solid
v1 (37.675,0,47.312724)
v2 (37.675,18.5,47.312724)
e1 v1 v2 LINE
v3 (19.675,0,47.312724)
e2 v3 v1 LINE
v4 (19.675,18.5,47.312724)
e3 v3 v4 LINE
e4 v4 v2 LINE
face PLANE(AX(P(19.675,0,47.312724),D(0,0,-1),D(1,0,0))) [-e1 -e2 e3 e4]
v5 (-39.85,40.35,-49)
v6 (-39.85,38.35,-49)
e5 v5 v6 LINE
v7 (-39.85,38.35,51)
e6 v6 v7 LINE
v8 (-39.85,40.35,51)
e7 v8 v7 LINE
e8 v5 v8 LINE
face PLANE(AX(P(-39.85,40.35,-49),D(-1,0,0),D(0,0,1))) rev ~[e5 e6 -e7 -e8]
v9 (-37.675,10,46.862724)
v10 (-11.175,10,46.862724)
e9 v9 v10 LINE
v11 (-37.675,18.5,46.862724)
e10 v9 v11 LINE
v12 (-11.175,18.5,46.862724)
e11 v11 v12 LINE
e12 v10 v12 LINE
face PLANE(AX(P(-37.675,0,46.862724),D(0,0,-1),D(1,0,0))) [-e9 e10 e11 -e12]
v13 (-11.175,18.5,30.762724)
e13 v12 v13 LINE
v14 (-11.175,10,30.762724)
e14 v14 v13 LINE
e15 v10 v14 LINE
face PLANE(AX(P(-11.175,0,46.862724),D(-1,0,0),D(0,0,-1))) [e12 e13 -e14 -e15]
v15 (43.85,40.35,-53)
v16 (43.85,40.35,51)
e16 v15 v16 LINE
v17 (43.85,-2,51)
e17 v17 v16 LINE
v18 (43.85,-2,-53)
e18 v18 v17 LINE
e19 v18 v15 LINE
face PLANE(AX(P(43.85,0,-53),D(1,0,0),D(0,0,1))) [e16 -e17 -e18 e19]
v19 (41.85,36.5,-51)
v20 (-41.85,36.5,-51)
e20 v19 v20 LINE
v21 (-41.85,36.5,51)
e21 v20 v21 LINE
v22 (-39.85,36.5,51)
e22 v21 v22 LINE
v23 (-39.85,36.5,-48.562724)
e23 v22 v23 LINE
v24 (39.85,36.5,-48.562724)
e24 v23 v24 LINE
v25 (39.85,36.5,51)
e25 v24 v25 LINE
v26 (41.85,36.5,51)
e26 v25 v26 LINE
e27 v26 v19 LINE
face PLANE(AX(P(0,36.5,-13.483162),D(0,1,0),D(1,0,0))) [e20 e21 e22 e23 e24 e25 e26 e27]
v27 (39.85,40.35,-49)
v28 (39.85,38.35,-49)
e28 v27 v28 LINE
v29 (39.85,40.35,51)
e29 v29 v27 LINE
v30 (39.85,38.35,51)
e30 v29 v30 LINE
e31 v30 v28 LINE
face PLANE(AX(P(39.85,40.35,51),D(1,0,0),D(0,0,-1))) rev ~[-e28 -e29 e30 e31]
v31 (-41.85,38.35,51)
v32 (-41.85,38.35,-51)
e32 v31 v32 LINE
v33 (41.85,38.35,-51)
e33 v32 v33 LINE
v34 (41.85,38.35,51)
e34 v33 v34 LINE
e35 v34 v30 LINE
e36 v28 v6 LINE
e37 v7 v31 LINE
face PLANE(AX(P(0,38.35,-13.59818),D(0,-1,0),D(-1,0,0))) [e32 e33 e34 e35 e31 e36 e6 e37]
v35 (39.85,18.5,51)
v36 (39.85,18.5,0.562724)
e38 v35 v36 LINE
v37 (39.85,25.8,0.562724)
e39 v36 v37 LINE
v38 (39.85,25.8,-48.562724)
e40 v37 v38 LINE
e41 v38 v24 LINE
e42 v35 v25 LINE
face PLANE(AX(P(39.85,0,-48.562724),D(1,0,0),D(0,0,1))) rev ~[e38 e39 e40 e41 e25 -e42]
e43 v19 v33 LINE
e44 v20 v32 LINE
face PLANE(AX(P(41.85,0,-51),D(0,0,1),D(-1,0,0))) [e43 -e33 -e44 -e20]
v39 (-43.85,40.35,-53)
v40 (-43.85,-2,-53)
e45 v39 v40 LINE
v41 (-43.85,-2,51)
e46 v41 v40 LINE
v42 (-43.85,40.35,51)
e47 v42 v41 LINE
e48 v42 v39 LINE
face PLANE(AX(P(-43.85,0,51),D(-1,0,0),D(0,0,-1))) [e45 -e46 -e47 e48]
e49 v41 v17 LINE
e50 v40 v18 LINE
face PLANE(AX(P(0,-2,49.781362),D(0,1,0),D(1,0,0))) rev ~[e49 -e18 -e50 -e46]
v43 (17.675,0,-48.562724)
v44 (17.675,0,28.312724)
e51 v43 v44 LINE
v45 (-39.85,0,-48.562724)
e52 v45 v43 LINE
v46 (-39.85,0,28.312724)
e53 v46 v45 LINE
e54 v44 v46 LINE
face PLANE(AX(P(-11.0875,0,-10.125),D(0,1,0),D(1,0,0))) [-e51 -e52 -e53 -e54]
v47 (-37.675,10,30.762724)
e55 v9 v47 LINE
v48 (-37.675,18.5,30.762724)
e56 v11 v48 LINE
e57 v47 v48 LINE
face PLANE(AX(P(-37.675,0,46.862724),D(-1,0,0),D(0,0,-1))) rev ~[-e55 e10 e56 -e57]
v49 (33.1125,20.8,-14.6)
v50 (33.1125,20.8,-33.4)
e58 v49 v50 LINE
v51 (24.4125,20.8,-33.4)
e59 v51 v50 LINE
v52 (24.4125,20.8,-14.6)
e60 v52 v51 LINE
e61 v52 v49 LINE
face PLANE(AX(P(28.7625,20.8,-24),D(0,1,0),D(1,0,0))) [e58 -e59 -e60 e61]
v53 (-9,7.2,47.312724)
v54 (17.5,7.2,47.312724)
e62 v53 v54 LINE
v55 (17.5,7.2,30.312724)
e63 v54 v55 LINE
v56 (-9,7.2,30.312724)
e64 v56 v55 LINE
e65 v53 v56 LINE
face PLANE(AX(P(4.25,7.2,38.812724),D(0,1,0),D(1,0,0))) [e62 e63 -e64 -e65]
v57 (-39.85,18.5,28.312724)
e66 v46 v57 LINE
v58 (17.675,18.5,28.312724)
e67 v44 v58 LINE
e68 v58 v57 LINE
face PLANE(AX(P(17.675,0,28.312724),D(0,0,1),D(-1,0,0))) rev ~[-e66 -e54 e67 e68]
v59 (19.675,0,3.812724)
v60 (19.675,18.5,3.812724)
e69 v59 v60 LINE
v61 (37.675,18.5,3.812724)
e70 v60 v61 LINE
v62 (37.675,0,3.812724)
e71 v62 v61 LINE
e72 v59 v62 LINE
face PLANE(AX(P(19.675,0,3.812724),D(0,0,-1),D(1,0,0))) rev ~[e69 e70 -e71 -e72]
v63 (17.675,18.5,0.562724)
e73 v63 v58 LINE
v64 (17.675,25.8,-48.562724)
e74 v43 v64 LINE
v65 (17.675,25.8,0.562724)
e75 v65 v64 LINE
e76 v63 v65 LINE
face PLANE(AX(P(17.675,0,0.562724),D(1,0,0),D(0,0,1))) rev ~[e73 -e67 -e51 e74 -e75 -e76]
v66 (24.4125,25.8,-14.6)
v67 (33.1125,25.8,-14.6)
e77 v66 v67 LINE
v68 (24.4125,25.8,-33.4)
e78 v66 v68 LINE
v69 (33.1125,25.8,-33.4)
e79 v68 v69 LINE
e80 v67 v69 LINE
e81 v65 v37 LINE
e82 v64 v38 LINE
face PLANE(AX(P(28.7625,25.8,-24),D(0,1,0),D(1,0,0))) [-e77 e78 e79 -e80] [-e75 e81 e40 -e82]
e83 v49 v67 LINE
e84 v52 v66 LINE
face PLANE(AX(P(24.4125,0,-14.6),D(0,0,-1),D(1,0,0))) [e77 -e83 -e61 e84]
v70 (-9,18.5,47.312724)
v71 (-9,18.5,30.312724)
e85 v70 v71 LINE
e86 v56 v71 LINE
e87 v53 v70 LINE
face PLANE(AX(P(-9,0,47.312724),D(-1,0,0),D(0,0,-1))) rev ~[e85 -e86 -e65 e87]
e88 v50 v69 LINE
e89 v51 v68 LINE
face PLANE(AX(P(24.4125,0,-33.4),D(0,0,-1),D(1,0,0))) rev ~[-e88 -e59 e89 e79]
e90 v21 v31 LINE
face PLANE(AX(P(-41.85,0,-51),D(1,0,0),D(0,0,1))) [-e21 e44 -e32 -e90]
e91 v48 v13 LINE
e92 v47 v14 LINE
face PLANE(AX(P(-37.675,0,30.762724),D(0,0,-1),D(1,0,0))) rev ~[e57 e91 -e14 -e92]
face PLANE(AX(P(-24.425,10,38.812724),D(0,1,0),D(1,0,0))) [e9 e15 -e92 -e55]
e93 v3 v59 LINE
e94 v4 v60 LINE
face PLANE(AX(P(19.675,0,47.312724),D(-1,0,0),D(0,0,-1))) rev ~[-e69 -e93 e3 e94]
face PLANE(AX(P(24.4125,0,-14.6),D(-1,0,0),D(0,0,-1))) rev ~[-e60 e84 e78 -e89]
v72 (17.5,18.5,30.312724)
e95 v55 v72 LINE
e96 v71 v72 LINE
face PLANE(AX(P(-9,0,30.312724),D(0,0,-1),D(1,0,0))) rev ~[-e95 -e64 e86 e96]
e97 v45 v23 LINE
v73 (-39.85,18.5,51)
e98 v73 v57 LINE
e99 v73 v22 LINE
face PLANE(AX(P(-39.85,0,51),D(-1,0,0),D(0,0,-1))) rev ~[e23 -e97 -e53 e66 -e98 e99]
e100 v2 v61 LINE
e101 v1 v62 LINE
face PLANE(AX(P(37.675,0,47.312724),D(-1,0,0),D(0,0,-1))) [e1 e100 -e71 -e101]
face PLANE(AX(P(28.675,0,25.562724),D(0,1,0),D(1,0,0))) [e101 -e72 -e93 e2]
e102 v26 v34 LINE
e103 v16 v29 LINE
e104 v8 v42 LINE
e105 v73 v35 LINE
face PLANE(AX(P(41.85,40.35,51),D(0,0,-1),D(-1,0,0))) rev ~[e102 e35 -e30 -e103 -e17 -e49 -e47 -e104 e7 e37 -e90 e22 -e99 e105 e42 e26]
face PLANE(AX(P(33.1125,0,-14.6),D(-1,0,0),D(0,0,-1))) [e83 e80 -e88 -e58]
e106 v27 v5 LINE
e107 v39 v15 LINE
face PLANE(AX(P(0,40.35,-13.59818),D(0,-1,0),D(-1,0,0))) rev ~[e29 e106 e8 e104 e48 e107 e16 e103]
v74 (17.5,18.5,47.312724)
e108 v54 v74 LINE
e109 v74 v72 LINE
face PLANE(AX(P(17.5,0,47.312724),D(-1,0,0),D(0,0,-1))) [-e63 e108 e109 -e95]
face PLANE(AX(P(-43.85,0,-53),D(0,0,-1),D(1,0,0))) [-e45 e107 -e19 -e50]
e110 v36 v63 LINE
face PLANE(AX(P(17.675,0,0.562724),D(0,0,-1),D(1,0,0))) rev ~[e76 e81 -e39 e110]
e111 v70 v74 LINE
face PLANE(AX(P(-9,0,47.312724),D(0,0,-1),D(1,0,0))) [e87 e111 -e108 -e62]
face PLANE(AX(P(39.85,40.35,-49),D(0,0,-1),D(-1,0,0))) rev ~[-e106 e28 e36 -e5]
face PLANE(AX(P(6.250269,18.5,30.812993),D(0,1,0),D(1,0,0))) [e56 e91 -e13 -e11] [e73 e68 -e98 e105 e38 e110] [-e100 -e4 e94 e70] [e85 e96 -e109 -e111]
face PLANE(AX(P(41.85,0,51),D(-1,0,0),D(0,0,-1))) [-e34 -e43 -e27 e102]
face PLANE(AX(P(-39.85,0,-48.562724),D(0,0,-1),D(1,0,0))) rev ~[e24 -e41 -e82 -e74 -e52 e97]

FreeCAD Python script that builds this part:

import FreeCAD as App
import Part
import Sketcher


def add_polygon(sketch, points):
    """Adds a closed chain of lines whose ends are joined by coincident constraints."""
    first, n = sketch.GeometryCount, len(points)
    for a, b in zip(points, points[1:] + points[:1]):
        sketch.addGeometry(Part.LineSegment(App.Vector(*a, 0), App.Vector(*b, 0)), False)
    for i in range(n):
        sketch.addConstraint(Sketcher.Constraint("Coincident", first + i, 2, first + (i + 1) % n, 1))

doc = App.newDocument("Part")
body = doc.addObject("PartDesign::Body", "Body")

sketch1 = body.newObject("Sketcher::SketchObject", "Sketch")
sketch1.AttachmentSupport = (doc.getObject("XZ_Plane"), [""])
sketch1.MapMode = "FlatFace"
add_polygon(sketch1, [(-41.85, 51), (-39.85, 51), (-39.85, -48.562724), (39.85, -48.562724), (39.85, 51), (41.85, 51), (41.85, -51), (-41.85, -51)])
sketch1.addConstraint(Sketcher.Constraint("Horizontal", 0))
sketch1.addConstraint(Sketcher.Constraint("Vertical", 1))
sketch1.addConstraint(Sketcher.Constraint("Horizontal", 2))
sketch1.addConstraint(Sketcher.Constraint("Vertical", 3))
sketch1.addConstraint(Sketcher.Constraint("Horizontal", 4))
sketch1.addConstraint(Sketcher.Constraint("Vertical", 5))
sketch1.addConstraint(Sketcher.Constraint("Horizontal", 6))
sketch1.addConstraint(Sketcher.Constraint("Vertical", 7))
sketch1.addConstraint(Sketcher.Constraint("Symmetric", 4, 2, 6, 2, -1, 1))
sketch1.addConstraint(Sketcher.Constraint("Symmetric", 0, 2, 3, 2, -2))
sketch1.addConstraint(Sketcher.Constraint("DistanceX", 0, 1, 0, 2, 2.0))
sketch1.addConstraint(Sketcher.Constraint("DistanceY", 5, 2, 5, 1, 102.0))
sketch1.addConstraint(Sketcher.Constraint("DistanceX", 2, 1, 2, 2, 79.7))
sketch1.addConstraint(Sketcher.Constraint("DistanceY", 1, 2, 1, 1, 99.562724))
pad1 = body.newObject("PartDesign::Pad", "Pad")
pad1.Profile = sketch1
pad1.Length = 36.5
pad1.Reversed = True

sketch2 = body.newObject("Sketcher::SketchObject", "Sketch001")
sketch2.AttachmentSupport = (doc.getObject("XZ_Plane"), [""])
sketch2.MapMode = "FlatFace"
add_polygon(sketch2, [(41.85, 51), (43.85, 51), (43.85, -53), (-43.85, -53), (-43.85, 51), (-41.85, 51), (-41.85, -51), (41.85, -51)])
sketch2.addConstraint(Sketcher.Constraint("Horizontal", 0))
sketch2.addConstraint(Sketcher.Constraint("Vertical", 1))
sketch2.addConstraint(Sketcher.Constraint("Horizontal", 2))
sketch2.addConstraint(Sketcher.Constraint("Vertical", 3))
sketch2.addConstraint(Sketcher.Constraint("Horizontal", 4))
sketch2.addConstraint(Sketcher.Constraint("Vertical", 5))
sketch2.addConstraint(Sketcher.Constraint("Horizontal", 6))
sketch2.addConstraint(Sketcher.Constraint("Vertical", 7))
sketch2.addConstraint(Sketcher.Constraint("Symmetric", 4, 2, 6, 2, -1, 1))
sketch2.addConstraint(Sketcher.Constraint("Symmetric", 0, 2, 3, 2, -2))
sketch2.addConstraint(Sketcher.Constraint("DistanceX", 0, 1, 0, 2, 2.0))
sketch2.addConstraint(Sketcher.Constraint("DistanceY", 1, 2, 1, 1, 104.0))
sketch2.addConstraint(Sketcher.Constraint("DistanceY", 5, 2, 5, 1, 102.0))
sketch2.addConstraint(Sketcher.Constraint("DistanceX", 2, 2, 2, 1, 87.7))
pad2 = body.newObject("PartDesign::Pad", "Pad001")
pad2.Profile = sketch2
pad2.Length = 40.35
pad2.Reversed = True

sketch3 = body.newObject("Sketcher::SketchObject", "Sketch002")
sketch3.AttachmentSupport = (doc.getObject("XZ_Plane"), [""])
sketch3.MapMode = "FlatFace"
add_polygon(sketch3, [(17.675, -48.562724), (17.675, 0.562724), (39.85, 0.562724), (39.85, -48.562724)])
add_polygon(sketch3, [(33.1125, -14.6), (24.4125, -14.6), (24.4125, -33.4), (33.1125, -33.4)])
sketch3.addConstraint(Sketcher.Constraint("Vertical", 0))
sketch3.addConstraint(Sketcher.Constraint("Horizontal", 1))
sketch3.addConstraint(Sketcher.Constraint("Vertical", 2))
sketch3.addConstraint(Sketcher.Constraint("Horizontal", 3))
sketch3.addConstraint(Sketcher.Constraint("Horizontal", 4))
sketch3.addConstraint(Sketcher.Constraint("Vertical", 5))
sketch3.addConstraint(Sketcher.Constraint("Horizontal", 6))
sketch3.addConstraint(Sketcher.Constraint("Vertical", 7))
sketch3.addConstraint(Sketcher.Constraint("DistanceX", 4, 2, 4, 1, 8.7))
sketch3.addConstraint(Sketcher.Constraint("DistanceY", 5, 2, 5, 1, 18.8))
sketch3.addConstraint(Sketcher.Constraint("DistanceY", 4, 2, -1, 1, 14.6))
sketch3.addConstraint(Sketcher.Constraint("DistanceX", 1, 1, 1, 2, 22.175))
sketch3.addConstraint(Sketcher.Constraint("DistanceX", -1, 1, 1, 2, 39.85))
sketch3.addConstraint(Sketcher.Constraint("DistanceY", 0, 1, 0, 2, 49.125448))
sketch3.addConstraint(Sketcher.Constraint("DistanceX", -1, 1, 4, 2, 24.4125))
sketch3.addConstraint(Sketcher.Constraint("DistanceY", -1, 1, 0, 2, 0.562724))
pad3 = body.newObject("PartDesign::Pad", "Pad002")
pad3.Profile = sketch3
pad3.Length = 25.8
pad3.Reversed = True

sketch4 = body.newObject("Sketcher::SketchObject", "Sketch003")
sketch4.AttachmentSupport = (doc.getObject("XZ_Plane"), [""])
sketch4.MapMode = "FlatFace"
add_polygon(sketch4, [(24.4125, -33.4), (24.4125, -14.6), (33.1125, -14.6), (33.1125, -33.4)])
sketch4.addConstraint(Sketcher.Constraint("Vertical", 0))
sketch4.addConstraint(Sketcher.Constraint("Horizontal", 1))
sketch4.addConstraint(Sketcher.Constraint("Vertical", 2))
sketch4.addConstraint(Sketcher.Constraint("Horizontal", 3))
sketch4.addConstraint(Sketcher.Constraint("DistanceX", 1, 1, 1, 2, 8.7))
sketch4.addConstraint(Sketcher.Constraint("DistanceY", 0, 1, 0, 2, 18.8))
sketch4.addConstraint(Sketcher.Constraint("DistanceY", 0, 2, -1, 1, 14.6))
sketch4.addConstraint(Sketcher.Constraint("DistanceX", -1, 1, 0, 2, 24.4125))
pad4 = body.newObject("PartDesign::Pad", "Pad003")
pad4.Profile = sketch4
pad4.Length = 20.8
pad4.Reversed = True
body2 = doc.addObject("PartDesign::Body", "Body001")

sketch5 = body2.newObject("Sketcher::SketchObject", "Sketch004")
sketch5.AttachmentSupport = (doc.getObject("XZ_Plane001"), [""])
sketch5.MapMode = "FlatFace"
add_polygon(sketch5, [(-9, 30.312724), (-9, 47.312724), (17.5, 47.312724), (17.5, 30.312724)])
sketch5.addConstraint(Sketcher.Constraint("Vertical", 0))
sketch5.addConstraint(Sketcher.Constraint("Horizontal", 1))
sketch5.addConstraint(Sketcher.Constraint("Vertical", 2))
sketch5.addConstraint(Sketcher.Constraint("Horizontal", 3))
sketch5.addConstraint(Sketcher.Constraint("DistanceY", 0, 1, 0, 2, 17.0))
sketch5.addConstraint(Sketcher.Constraint("DistanceX", 1, 1, 1, 2, 26.5))
sketch5.addConstraint(Sketcher.Constraint("DistanceX", 0, 2, -1, 1, 9.0))
sketch5.addConstraint(Sketcher.Constraint("DistanceY", -1, 1, 0, 2, 47.312724))
pad5 = body2.newObject("PartDesign::Pad", "Pad004")
pad5.Profile = sketch5
pad5.Length = 7.2
pad5.Reversed = True
body3 = doc.addObject("PartDesign::Body", "Body002")

sketch6 = body3.newObject("Sketcher::SketchObject", "Sketch005")
sketch6.AttachmentSupport = (doc.getObject("XZ_Plane002"), [""])
sketch6.MapMode = "FlatFace"
add_polygon(sketch6, [(-37.675, 30.762724), (-37.675, 46.862724), (-11.175, 46.862724), (-11.175, 30.762724)])
sketch6.addConstraint(Sketcher.Constraint("Vertical", 0))
sketch6.addConstraint(Sketcher.Constraint("Horizontal", 1))
sketch6.addConstraint(Sketcher.Constraint("Vertical", 2))
sketch6.addConstraint(Sketcher.Constraint("Horizontal", 3))
sketch6.addConstraint(Sketcher.Constraint("DistanceX", 1, 1, 1, 2, 26.5))
sketch6.addConstraint(Sketcher.Constraint("DistanceY", 0, 1, 0, 2, 16.1))
sketch6.addConstraint(Sketcher.Constraint("DistanceX", 0, 2, -1, 1, 37.675))
sketch6.addConstraint(Sketcher.Constraint("DistanceY", -1, 1, 0, 2, 46.862724))
pad6 = body3.newObject("PartDesign::Pad", "Pad005")
pad6.Profile = sketch6
pad6.Length = 10
pad6.Reversed = True
body.AllowCompound = True
doc.recompute()

boolean = body.newObject("PartDesign::Boolean", "Boolean")
boolean.Type = "Fuse"
boolean.addObjects([body2])
doc.recompute()

boolean2 = body.newObject("PartDesign::Boolean", "Boolean001")
boolean2.Type = "Fuse"
boolean2.addObjects([body3])

sketch7 = body.newObject("Sketcher::SketchObject", "Sketch006")
sketch7.AttachmentSupport = (doc.getObject("XZ_Plane"), [""])
sketch7.MapMode = "FlatFace"
add_polygon(sketch7, [(-39.85, 28.312724), (-39.85, 51), (39.85, 51), (39.85, 0.562724), (17.675, 0.562724), (17.675, 28.312724)])
add_polygon(sketch7, [(-11.175, 46.862724), (-37.675, 46.862724), (-37.675, 30.762724), (-11.175, 30.762724)])
add_polygon(sketch7, [(17.5, 47.312724), (-9, 47.312724), (-9, 30.312724), (17.5, 30.312724)])
add_polygon(sketch7, [(37.675, 47.312724), (19.675, 47.312724), (19.675, 3.812724), (37.675, 3.812724)])
sketch7.addConstraint(Sketcher.Constraint("Vertical", 0))
sketch7.addConstraint(Sketcher.Constraint("Horizontal", 1))
sketch7.addConstraint(Sketcher.Constraint("Vertical", 2))
sketch7.addConstraint(Sketcher.Constraint("Horizontal", 3))
sketch7.addConstraint(Sketcher.Constraint("Vertical", 4))
sketch7.addConstraint(Sketcher.Constraint("Horizontal", 5))
sketch7.addConstraint(Sketcher.Constraint("Horizontal", 6))
sketch7.addConstraint(Sketcher.Constraint("Vertical", 7))
sketch7.addConstraint(Sketcher.Constraint("Horizontal", 8))
sketch7.addConstraint(Sketcher.Constraint("Vertical", 9))
sketch7.addConstraint(Sketcher.Constraint("Horizontal", 10))
sketch7.addConstraint(Sketcher.Constraint("Vertical", 11))
sketch7.addConstraint(Sketcher.Constraint("Horizontal", 12))
sketch7.addConstraint(Sketcher.Constraint("Vertical", 13))
sketch7.addConstraint(Sketcher.Constraint("Horizontal", 14))
sketch7.addConstraint(Sketcher.Constraint("Vertical", 15))
sketch7.addConstraint(Sketcher.Constraint("Horizontal", 16))
sketch7.addConstraint(Sketcher.Constraint("Vertical", 17))
sketch7.addConstraint(Sketcher.Constraint("Horizontal", 13, 2, 14, 2))
sketch7.addConstraint(Sketcher.Constraint("Equal", 8, 10))
sketch7.addConstraint(Sketcher.Constraint("DistanceX", 14, 2, 14, 1, 18.0))
sketch7.addConstraint(Sketcher.Constraint("DistanceY", 11, 2, 11, 1, 17.0))
sketch7.addConstraint(Sketcher.Constraint("DistanceX", 1, 1, 1, 2, 79.7))
sketch7.addConstraint(Sketcher.Constraint("DistanceX", 6, 2, 6, 1, 26.5))
sketch7.addConstraint(Sketcher.Constraint("DistanceY", 7, 2, 7, 1, 16.1))
sketch7.addConstraint(Sketcher.Constraint("DistanceY", 15, 2, 15, 1, 43.5))
sketch7.addConstraint(Sketcher.Constraint("DistanceY", -1, 1, 0, 2, 51.0))
sketch7.addConstraint(Sketcher.Constraint("DistanceX", 10, 2, -1, 1, 9.0))
sketch7.addConstraint(Sketcher.Constraint("DistanceY", 4, 2, 10, 2, 19.0))
sketch7.addConstraint(Sketcher.Constraint("DistanceX", 4, 2, 14, 2, 2.0))
sketch7.addConstraint(Sketcher.Constraint("DistanceY", 4, 1, 4, 2, 27.75))
sketch7.addConstraint(Sketcher.Constraint("DistanceY", 3, 2, 6, 2, 46.3))
sketch7.addConstraint(Sketcher.Constraint("DistanceX", 3, 2, 3, 1, 22.175))
sketch7.addConstraint(Sketcher.Constraint("DistanceX", 0, 2, -1, 1, 39.85))
sketch7.addConstraint(Sketcher.Constraint("DistanceX", 6, 2, 4, 2, 55.35))
sketch7.addConstraint(Sketcher.Constraint("DistanceY", 0, 1, 0, 2, 22.687276))
pad7 = body.newObject("PartDesign::Pad", "Pad006")
pad7.Profile = sketch7
pad7.Length = 18.5
pad7.Reversed = True

sketch8 = body.newObject("Sketcher::SketchObject", "Sketch007")
sketch8.AttachmentSupport = (doc.getObject("XZ_Plane"), [""])
sketch8.MapMode = "FlatFace"
add_polygon(sketch8, [(43.85, 51), (43.85, -53), (-43.85, -53), (-43.85, 51)])
sketch8.addConstraint(Sketcher.Constraint("Vertical", 0))
sketch8.addConstraint(Sketcher.Constraint("Horizontal", 1))
sketch8.addConstraint(Sketcher.Constraint("Vertical", 2))
sketch8.addConstraint(Sketcher.Constraint("Horizontal", 3))
sketch8.addConstraint(Sketcher.Constraint("DistanceY", 0, 2, 0, 1, 104.0))
sketch8.addConstraint(Sketcher.Constraint("DistanceX", 1, 2, 1, 1, 87.7))
sketch8.addConstraint(Sketcher.Constraint("DistanceY", 0, 2, -1, 1, 53.0))
sketch8.addConstraint(Sketcher.Constraint("DistanceX", -1, 1, 0, 2, 43.85))
pad8 = body.newObject("PartDesign::Pad", "Pad007")
pad8.Profile = sketch8
pad8.Length = 2

sketch9 = body.newObject("Sketcher::SketchObject", "Sketch008")
sketch9.AttachmentSupport = (doc.getObject("XZ_Plane"), [""])
sketch9.MapMode = "FlatFace"
sketch9.AttachmentOffset = App.Placement(App.Vector(0, 0, -40.35), App.Rotation())
add_polygon(sketch9, [(-41.85, -51), (-41.85, 51), (-39.85, 51), (-39.85, -49), (39.85, -49), (39.85, 51), (41.85, 51), (41.85, -51)])
sketch9.addConstraint(Sketcher.Constraint("Vertical", 0))
sketch9.addConstraint(Sketcher.Constraint("Horizontal", 1))
sketch9.addConstraint(Sketcher.Constraint("Vertical", 2))
sketch9.addConstraint(Sketcher.Constraint("Horizontal", 3))
sketch9.addConstraint(Sketcher.Constraint("Vertical", 4))
sketch9.addConstraint(Sketcher.Constraint("Horizontal", 5))
sketch9.addConstraint(Sketcher.Constraint("Vertical", 6))
sketch9.addConstraint(Sketcher.Constraint("Horizontal", 7))
sketch9.addConstraint(Sketcher.Constraint("Symmetric", 0, 2, 6, 2, -1, 1))
sketch9.addConstraint(Sketcher.Constraint("Symmetric", 1, 2, 4, 2, -2))
sketch9.addConstraint(Sketcher.Constraint("DistanceX", 1, 1, 1, 2, 2.0))
sketch9.addConstraint(Sketcher.Constraint("DistanceY", 0, 1, 0, 2, 102.0))
sketch9.addConstraint(Sketcher.Constraint("DistanceY", 2, 2, 2, 1, 100.0))
sketch9.addConstraint(Sketcher.Constraint("DistanceX", 3, 1, 3, 2, 79.7))
pad9 = body.newObject("PartDesign::Pad", "Pad008")
pad9.Profile = sketch9
pad9.Length = 2

doc.recompute()
